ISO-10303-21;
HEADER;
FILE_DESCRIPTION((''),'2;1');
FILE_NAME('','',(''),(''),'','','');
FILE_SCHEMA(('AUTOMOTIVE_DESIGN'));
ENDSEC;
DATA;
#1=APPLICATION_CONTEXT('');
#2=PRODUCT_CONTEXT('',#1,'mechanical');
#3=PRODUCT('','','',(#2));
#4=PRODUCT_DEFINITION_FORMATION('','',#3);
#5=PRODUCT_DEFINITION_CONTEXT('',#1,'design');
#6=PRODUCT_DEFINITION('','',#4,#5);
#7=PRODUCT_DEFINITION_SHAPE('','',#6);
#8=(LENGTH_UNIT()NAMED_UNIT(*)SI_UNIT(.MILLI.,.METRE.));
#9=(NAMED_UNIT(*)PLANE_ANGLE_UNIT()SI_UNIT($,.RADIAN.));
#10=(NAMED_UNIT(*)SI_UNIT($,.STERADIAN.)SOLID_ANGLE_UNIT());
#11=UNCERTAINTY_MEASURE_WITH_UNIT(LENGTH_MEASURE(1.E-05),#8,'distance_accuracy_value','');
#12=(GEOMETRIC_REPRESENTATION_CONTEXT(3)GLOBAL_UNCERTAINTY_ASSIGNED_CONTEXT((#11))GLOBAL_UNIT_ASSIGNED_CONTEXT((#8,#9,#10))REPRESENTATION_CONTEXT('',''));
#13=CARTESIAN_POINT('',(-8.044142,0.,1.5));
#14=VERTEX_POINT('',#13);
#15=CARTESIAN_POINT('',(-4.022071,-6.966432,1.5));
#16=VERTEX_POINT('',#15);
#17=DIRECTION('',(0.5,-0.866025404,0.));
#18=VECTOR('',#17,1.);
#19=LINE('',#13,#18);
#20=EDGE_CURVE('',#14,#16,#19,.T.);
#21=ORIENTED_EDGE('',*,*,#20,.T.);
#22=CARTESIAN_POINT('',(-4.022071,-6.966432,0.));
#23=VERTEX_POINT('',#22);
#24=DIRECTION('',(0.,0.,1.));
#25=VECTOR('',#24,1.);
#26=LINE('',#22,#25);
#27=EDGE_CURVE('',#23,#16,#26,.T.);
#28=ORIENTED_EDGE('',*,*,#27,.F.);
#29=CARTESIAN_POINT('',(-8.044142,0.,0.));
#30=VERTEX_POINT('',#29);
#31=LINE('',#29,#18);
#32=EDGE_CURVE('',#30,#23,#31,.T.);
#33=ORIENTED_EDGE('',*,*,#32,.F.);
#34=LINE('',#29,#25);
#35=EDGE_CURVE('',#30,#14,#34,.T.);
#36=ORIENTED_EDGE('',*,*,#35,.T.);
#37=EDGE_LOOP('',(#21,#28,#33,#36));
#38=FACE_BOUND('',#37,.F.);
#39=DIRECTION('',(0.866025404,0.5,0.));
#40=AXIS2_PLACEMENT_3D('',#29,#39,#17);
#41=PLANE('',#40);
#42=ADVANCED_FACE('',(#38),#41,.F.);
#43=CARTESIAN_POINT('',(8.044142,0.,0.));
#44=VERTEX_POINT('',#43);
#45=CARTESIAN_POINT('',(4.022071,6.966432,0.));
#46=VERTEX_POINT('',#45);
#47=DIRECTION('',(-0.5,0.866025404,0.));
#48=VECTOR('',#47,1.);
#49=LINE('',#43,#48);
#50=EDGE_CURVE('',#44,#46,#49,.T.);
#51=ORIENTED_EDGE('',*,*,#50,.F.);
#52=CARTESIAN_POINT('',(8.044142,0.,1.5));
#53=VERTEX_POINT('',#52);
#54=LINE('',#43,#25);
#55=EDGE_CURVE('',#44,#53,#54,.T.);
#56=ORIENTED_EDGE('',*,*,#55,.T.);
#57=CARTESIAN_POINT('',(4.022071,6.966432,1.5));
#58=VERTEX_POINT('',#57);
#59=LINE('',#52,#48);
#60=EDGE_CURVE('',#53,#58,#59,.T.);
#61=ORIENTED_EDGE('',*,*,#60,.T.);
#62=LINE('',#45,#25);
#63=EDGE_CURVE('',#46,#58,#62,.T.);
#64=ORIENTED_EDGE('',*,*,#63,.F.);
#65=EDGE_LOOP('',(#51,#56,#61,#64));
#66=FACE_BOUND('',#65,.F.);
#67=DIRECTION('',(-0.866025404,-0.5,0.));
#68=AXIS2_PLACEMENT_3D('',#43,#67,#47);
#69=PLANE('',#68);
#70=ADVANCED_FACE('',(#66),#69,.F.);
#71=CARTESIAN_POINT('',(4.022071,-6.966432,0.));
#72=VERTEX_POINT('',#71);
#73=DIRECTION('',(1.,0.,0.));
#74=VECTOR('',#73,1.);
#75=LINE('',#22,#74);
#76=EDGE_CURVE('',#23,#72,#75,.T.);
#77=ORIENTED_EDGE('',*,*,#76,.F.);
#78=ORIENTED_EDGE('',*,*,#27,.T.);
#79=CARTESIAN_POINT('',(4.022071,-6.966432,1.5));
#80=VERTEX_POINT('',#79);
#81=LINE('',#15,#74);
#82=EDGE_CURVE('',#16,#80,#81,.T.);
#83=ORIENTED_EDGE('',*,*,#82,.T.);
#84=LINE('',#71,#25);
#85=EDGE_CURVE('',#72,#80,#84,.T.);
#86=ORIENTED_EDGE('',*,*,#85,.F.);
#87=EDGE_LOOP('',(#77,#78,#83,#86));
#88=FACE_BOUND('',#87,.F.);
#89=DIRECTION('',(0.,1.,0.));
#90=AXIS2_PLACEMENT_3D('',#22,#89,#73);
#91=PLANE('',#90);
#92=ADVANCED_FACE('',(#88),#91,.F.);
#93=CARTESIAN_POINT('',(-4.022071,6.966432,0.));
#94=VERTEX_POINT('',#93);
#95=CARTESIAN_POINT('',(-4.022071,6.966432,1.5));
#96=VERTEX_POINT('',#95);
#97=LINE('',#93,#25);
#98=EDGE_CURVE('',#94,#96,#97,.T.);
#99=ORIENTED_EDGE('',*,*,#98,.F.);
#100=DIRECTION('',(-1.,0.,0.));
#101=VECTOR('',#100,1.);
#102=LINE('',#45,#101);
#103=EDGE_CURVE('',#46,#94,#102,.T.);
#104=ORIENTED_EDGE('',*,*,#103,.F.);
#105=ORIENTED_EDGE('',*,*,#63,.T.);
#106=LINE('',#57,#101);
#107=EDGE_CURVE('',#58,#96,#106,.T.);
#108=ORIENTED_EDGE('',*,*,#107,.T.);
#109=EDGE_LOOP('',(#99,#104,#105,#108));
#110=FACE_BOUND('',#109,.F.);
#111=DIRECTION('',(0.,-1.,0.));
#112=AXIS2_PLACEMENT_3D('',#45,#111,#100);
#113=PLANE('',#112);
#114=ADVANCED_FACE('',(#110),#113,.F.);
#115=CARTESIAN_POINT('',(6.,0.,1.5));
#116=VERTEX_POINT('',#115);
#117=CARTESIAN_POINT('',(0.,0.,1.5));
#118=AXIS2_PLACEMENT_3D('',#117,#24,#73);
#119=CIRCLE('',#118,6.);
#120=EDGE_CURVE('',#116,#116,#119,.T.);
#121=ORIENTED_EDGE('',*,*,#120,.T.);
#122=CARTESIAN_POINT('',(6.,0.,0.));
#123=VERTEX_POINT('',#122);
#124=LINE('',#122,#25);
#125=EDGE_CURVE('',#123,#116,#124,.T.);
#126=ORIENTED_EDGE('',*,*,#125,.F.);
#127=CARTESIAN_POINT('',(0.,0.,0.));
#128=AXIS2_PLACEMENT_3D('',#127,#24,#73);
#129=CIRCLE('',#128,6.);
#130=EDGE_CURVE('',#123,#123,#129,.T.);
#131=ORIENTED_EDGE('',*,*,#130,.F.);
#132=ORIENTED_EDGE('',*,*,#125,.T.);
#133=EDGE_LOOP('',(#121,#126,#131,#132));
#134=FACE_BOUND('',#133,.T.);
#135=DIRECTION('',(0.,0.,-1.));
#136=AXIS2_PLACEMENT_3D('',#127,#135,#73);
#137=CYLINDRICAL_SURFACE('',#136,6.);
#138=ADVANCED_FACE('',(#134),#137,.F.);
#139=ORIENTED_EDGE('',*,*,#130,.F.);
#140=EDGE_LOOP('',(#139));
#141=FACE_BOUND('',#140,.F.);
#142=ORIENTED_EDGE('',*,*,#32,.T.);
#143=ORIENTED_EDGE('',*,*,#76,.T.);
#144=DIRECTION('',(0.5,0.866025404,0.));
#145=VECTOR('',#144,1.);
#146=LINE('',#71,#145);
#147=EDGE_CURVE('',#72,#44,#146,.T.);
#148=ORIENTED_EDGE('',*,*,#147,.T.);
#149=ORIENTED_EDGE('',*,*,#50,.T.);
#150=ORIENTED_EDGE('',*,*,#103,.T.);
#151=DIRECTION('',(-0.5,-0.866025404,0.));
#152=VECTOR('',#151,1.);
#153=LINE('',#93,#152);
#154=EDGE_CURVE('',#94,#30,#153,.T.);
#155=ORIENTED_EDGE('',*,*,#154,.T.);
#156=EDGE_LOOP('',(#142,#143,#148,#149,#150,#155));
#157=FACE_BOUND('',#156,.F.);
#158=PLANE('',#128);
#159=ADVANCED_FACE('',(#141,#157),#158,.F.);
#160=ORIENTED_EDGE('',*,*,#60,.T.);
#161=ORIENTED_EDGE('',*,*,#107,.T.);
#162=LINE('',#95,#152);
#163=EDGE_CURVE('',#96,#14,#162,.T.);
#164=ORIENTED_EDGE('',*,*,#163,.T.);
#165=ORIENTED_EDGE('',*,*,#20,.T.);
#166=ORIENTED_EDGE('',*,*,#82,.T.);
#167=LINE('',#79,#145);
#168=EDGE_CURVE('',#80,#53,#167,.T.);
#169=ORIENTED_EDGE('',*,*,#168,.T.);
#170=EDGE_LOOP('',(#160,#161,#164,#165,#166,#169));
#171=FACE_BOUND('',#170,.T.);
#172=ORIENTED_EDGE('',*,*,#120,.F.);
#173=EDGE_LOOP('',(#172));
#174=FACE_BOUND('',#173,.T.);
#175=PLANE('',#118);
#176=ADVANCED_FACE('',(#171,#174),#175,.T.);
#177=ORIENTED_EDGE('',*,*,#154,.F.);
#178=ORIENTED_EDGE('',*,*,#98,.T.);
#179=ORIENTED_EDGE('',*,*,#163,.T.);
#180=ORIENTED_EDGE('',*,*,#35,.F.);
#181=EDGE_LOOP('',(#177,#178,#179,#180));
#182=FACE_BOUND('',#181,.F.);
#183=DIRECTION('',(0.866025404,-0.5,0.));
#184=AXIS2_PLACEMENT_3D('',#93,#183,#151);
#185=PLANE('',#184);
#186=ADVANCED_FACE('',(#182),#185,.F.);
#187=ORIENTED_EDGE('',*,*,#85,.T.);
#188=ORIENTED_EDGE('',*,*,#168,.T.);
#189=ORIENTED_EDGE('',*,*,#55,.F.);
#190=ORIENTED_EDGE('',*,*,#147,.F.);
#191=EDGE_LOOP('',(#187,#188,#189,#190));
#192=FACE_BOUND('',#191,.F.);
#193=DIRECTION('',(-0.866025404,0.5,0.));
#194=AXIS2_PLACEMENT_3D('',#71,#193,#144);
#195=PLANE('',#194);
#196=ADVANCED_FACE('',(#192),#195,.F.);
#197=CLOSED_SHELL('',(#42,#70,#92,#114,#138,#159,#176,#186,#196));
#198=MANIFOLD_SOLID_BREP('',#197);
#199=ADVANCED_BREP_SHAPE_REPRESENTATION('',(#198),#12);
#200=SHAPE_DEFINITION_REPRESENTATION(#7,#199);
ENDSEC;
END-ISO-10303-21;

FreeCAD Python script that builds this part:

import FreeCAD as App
import Part
import Sketcher
Q = App.Units.Quantity


def add_polygon(sketch, points):
    """Adds a closed chain of lines whose ends are joined by coincident constraints."""
    first, n = sketch.GeometryCount, len(points)
    for a, b in zip(points, points[1:] + points[:1]):
        sketch.addGeometry(Part.LineSegment(App.Vector(*a, 0), App.Vector(*b, 0)), False)
    for i in range(n):
        sketch.addConstraint(Sketcher.Constraint("Coincident", first + i, 2, first + (i + 1) % n, 1))

doc = App.newDocument("Part")
body = doc.addObject("PartDesign::Body", "Body")

# Sketch on XY plane
sketch1 = doc.addObject("Sketcher::SketchObject", "Sketch")
body.addObject(sketch1)
sketch1.AttachmentSupport = (doc.XY_Plane, [""])
sketch1.MapMode = "FlatFace"
add_polygon(sketch1, [(8, 0), (4, 7), (-4, 7), (-8, 0), (-4, -7), (4, -7)])  # lines 0-5
sketch1.addGeometry(Part.Circle(App.Vector(0, 0, 0), App.Vector(0, 0, 1), 6), False)  # 6
sketch1.addConstraint([
    Sketcher.Constraint("Horizontal", 1),
    Sketcher.Constraint("Horizontal", 4),
    Sketcher.Constraint("Coincident", 6, 3, -1, 1),
    Sketcher.Constraint("Symmetric", 0, 2, 3, 2, -1, 1),
    Sketcher.Constraint("Symmetric", 2, 2, 5, 2, -1, 1),
    Sketcher.Constraint("PointOnObject", 2, 2, -1),
    Sketcher.Constraint("Parallel", 2, 5),
    Sketcher.Constraint("Vertical", 1, 2, 3, 2),
    Sketcher.Constraint("Diameter", 6, 12.0),
    Sketcher.Constraint("Angle", 0, Q("120 deg")),
    Sketcher.Constraint("DistanceX", 1, 2, 1, 1, 8.044142),
    Sketcher.Constraint("DistanceY", -1, 1, 0, 2, 6.966432),
])
pad1 = doc.addObject("PartDesign::Pad", "Pad")
body.addObject(pad1)
pad1.Profile = sketch1
pad1.Length = 1.5

doc.recompute()
